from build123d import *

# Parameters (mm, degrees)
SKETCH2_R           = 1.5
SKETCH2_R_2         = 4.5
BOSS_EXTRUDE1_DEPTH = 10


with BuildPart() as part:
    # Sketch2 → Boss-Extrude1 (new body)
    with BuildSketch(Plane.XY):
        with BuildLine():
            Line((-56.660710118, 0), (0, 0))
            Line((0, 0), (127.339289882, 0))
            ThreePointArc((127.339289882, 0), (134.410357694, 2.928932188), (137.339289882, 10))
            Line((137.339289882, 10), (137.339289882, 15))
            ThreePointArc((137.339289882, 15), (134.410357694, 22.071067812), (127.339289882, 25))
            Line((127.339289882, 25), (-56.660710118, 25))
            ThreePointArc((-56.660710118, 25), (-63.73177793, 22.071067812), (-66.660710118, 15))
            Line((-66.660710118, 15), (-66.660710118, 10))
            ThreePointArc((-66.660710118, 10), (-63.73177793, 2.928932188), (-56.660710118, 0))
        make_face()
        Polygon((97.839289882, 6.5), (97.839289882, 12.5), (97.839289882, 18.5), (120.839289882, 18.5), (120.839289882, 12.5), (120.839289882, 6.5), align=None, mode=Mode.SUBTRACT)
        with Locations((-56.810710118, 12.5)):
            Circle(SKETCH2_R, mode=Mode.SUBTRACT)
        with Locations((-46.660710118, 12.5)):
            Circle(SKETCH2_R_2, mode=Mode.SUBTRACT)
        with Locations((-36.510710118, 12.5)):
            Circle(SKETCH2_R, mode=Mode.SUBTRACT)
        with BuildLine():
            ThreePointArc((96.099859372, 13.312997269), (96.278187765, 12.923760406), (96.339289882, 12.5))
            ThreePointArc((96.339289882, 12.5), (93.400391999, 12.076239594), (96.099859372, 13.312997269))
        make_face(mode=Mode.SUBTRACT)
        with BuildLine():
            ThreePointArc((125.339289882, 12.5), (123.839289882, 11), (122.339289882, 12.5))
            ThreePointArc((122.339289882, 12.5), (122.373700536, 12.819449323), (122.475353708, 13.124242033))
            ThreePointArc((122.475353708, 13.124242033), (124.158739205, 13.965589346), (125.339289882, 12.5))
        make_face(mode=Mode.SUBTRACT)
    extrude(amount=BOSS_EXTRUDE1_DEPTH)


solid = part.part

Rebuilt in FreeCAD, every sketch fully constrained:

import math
import FreeCAD as App
import Part
import Sketcher
Q = App.Units.Quantity


def add_polygon(sketch, points):
    """Adds a closed chain of lines whose ends are joined by coincident constraints."""
    first, n = sketch.GeometryCount, len(points)
    for a, b in zip(points, points[1:] + points[:1]):
        sketch.addGeometry(Part.LineSegment(App.Vector(*a, 0), App.Vector(*b, 0)), False)
    for i in range(n):
        sketch.addConstraint(Sketcher.Constraint("Coincident", first + i, 2, first + (i + 1) % n, 1))

doc = App.newDocument("Part")
body = doc.addObject("PartDesign::Body", "Body")

# Sketch on XY plane
sketch1 = doc.addObject("Sketcher::SketchObject", "Sketch")
body.addObject(sketch1)
sketch1.AttachmentSupport = (doc.XY_Plane, [""])
sketch1.MapMode = "FlatFace"
sketch1.addGeometry(Part.LineSegment(App.Vector(-56.7, 0, 0), App.Vector(127.3, 0, 0)), False)  # 0
sketch1.addGeometry(Part.ArcOfCircle(Part.Circle(App.Vector(127.3, 10, 0), App.Vector(0, 0, 1), 10), math.radians(-90), math.radians(0)), False)  # 1
sketch1.addGeometry(Part.LineSegment(App.Vector(137.3, 10, 0), App.Vector(137.3, 15, 0)), False)  # 2
sketch1.addGeometry(Part.ArcOfCircle(Part.Circle(App.Vector(127.3, 15, 0), App.Vector(0, 0, 1), 10), math.radians(0), math.radians(90)), False)  # 3
sketch1.addGeometry(Part.LineSegment(App.Vector(127.3, 25, 0), App.Vector(-56.7, 25, 0)), False)  # 4
sketch1.addGeometry(Part.ArcOfCircle(Part.Circle(App.Vector(-56.7, 15, 0), App.Vector(0, 0, 1), 10), math.radians(90), math.radians(180)), False)  # 5
sketch1.addGeometry(Part.LineSegment(App.Vector(-66.7, 15, 0), App.Vector(-66.7, 10, 0)), False)  # 6
sketch1.addGeometry(Part.ArcOfCircle(Part.Circle(App.Vector(-56.7, 10, 0), App.Vector(0, 0, 1), 10), math.radians(180), math.radians(270)), False)  # 7
sketch1.addGeometry(Part.ArcOfCircle(Part.Circle(App.Vector(94.8, 12.5, 0), App.Vector(0, 0, 1), 1.5), math.radians(33), math.radians(360)), False)  # 8
sketch1.addGeometry(Part.ArcOfCircle(Part.Circle(App.Vector(94.8, 12.5, 0), App.Vector(0, 0, 1), 1.5), math.radians(0), math.radians(33)), False)  # 9
sketch1.addGeometry(Part.Circle(App.Vector(-56.8, 12.5, 0), App.Vector(0, 0, 1), 1.5), False)  # 10
sketch1.addGeometry(Part.Circle(App.Vector(-46.7, 12.5, 0), App.Vector(0, 0, 1), 4.5), False)  # 11
sketch1.addGeometry(Part.Circle(App.Vector(-36.5, 12.5, 0), App.Vector(0, 0, 1), 1.5), False)  # 12
add_polygon(sketch1, [(120.8, 6.5), (97.8, 6.5), (97.8, 18.5), (120.8, 18.5)])  # lines 13-16
sketch1.addGeometry(Part.ArcOfCircle(Part.Circle(App.Vector(123.8, 12.5, 0), App.Vector(0, 0, 1), 1.5), math.radians(0), math.radians(155)), False)  # 17
sketch1.addGeometry(Part.ArcOfCircle(Part.Circle(App.Vector(123.8, 12.5, 0), App.Vector(0, 0, 1), 1.5), math.radians(180), math.radians(360)), False)  # 18
sketch1.addGeometry(Part.ArcOfCircle(Part.Circle(App.Vector(123.8, 12.5, 0), App.Vector(0, 0, 1), 1.5), math.radians(155), math.radians(180)), False)  # 19
sketch1.addConstraint([
    Sketcher.Constraint("Tangent", 0, 2, 1, 1),
    Sketcher.Constraint("Tangent", 1, 2, 2, 1),
    Sketcher.Constraint("Tangent", 2, 2, 3, 1),
    Sketcher.Constraint("Tangent", 3, 2, 4, 1),
    Sketcher.Constraint("Tangent", 4, 2, 5, 1),
    Sketcher.Constraint("Tangent", 5, 2, 6, 1),
    Sketcher.Constraint("Tangent", 6, 2, 7, 1),
    Sketcher.Constraint("Tangent", 7, 2, 0, 1),
    Sketcher.Constraint("Tangent", 8, 1, 9, 2),
    Sketcher.Constraint("Coincident", 9, 1, 8, 2),
    Sketcher.Constraint("Tangent", 17, 1, 18, 2),
    Sketcher.Constraint("Tangent", 18, 1, 19, 2),
    Sketcher.Constraint("Tangent", 19, 1, 17, 2),
    Sketcher.Constraint("Horizontal", 0),
    Sketcher.Constraint("Vertical", 2),
    Sketcher.Constraint("Horizontal", 4),
    Sketcher.Constraint("Vertical", 6),
    Sketcher.Constraint("Horizontal", 13),
    Sketcher.Constraint("Vertical", 14),
    Sketcher.Constraint("Horizontal", 15),
    Sketcher.Constraint("Vertical", 16),
    Sketcher.Constraint("Equal", 1, 3),
    Sketcher.Constraint("Equal", 3, 5),
    Sketcher.Constraint("Equal", 5, 7),
    Sketcher.Constraint("Equal", 9, 10),
    Sketcher.Constraint("Equal", 10, 12),
    Sketcher.Constraint("Equal", 12, 17),
    Sketcher.Constraint("PointOnObject", 0, 2, -1),
    Sketcher.Constraint("Horizontal", 9, 3, 10, 3),
    Sketcher.Constraint("Horizontal", 10, 3, 11, 3),
    Sketcher.Constraint("Horizontal", 11, 3, 12, 3),
    Sketcher.Constraint("Horizontal", 12, 3, 17, 3),
    Sketcher.Constraint("Horizontal", 19, 3, 9, 1),
    Sketcher.Constraint("Horizontal", 9, 1, 17, 1),
    Sketcher.Constraint("Horizontal", 17, 1, 18, 1),
    Sketcher.Constraint("Diameter", 10, Q("3 mm")),
    Sketcher.Constraint("Diameter", 11, Q("9 mm")),
    Sketcher.Constraint("Radius", 1, Q("10 mm")),
    Sketcher.Constraint("DistanceX", 0, 1, 0, 2, Q("184 mm")),
    Sketcher.Constraint("DistanceX", 13, 2, 13, 1, Q("23 mm")),
    Sketcher.Constraint("DistanceY", 2, 1, 2, 2, Q("5 mm")),
    Sketcher.Constraint("DistanceY", 14, 1, 14, 2, Q("12 mm")),
    Sketcher.Constraint("DistanceX", 5, 3, 11, 3, Q("10 mm")),
    Sketcher.Constraint("DistanceX", 9, 3, 17, 3, Q("29 mm")),
    Sketcher.Constraint("DistanceY", 13, 2, 9, 1, Q("6 mm")),
    Sketcher.Constraint("DistanceX", 9, 3, 13, 2, Q("3 mm")),
    Sketcher.Constraint("DistanceX", 17, 1, 1, 3, Q("2 mm")),
    Sketcher.Constraint("DistanceY", -1, 1, 8, 3, Q("12.5 mm")),
    Sketcher.Constraint("DistanceX", 10, 3, 12, 3, Q("20.3 mm")),
    Sketcher.Constraint("DistanceX", 10, 3, 5, 3, Q("0.15 mm")),
    Sketcher.Constraint("DistanceX", -1, 1, 1, 3, Q("127.33929 mm")),
    Sketcher.Constraint("DistanceX", -1, 1, 8, 1, Q("96.099859 mm")),
    Sketcher.Constraint("DistanceX", -1, 1, 19, 1, Q("122.475354 mm")),
])
pad1 = doc.addObject("PartDesign::Pad", "Pad")
body.addObject(pad1)
pad1.Profile = sketch1
pad1.Length = 10

doc.recompute()
